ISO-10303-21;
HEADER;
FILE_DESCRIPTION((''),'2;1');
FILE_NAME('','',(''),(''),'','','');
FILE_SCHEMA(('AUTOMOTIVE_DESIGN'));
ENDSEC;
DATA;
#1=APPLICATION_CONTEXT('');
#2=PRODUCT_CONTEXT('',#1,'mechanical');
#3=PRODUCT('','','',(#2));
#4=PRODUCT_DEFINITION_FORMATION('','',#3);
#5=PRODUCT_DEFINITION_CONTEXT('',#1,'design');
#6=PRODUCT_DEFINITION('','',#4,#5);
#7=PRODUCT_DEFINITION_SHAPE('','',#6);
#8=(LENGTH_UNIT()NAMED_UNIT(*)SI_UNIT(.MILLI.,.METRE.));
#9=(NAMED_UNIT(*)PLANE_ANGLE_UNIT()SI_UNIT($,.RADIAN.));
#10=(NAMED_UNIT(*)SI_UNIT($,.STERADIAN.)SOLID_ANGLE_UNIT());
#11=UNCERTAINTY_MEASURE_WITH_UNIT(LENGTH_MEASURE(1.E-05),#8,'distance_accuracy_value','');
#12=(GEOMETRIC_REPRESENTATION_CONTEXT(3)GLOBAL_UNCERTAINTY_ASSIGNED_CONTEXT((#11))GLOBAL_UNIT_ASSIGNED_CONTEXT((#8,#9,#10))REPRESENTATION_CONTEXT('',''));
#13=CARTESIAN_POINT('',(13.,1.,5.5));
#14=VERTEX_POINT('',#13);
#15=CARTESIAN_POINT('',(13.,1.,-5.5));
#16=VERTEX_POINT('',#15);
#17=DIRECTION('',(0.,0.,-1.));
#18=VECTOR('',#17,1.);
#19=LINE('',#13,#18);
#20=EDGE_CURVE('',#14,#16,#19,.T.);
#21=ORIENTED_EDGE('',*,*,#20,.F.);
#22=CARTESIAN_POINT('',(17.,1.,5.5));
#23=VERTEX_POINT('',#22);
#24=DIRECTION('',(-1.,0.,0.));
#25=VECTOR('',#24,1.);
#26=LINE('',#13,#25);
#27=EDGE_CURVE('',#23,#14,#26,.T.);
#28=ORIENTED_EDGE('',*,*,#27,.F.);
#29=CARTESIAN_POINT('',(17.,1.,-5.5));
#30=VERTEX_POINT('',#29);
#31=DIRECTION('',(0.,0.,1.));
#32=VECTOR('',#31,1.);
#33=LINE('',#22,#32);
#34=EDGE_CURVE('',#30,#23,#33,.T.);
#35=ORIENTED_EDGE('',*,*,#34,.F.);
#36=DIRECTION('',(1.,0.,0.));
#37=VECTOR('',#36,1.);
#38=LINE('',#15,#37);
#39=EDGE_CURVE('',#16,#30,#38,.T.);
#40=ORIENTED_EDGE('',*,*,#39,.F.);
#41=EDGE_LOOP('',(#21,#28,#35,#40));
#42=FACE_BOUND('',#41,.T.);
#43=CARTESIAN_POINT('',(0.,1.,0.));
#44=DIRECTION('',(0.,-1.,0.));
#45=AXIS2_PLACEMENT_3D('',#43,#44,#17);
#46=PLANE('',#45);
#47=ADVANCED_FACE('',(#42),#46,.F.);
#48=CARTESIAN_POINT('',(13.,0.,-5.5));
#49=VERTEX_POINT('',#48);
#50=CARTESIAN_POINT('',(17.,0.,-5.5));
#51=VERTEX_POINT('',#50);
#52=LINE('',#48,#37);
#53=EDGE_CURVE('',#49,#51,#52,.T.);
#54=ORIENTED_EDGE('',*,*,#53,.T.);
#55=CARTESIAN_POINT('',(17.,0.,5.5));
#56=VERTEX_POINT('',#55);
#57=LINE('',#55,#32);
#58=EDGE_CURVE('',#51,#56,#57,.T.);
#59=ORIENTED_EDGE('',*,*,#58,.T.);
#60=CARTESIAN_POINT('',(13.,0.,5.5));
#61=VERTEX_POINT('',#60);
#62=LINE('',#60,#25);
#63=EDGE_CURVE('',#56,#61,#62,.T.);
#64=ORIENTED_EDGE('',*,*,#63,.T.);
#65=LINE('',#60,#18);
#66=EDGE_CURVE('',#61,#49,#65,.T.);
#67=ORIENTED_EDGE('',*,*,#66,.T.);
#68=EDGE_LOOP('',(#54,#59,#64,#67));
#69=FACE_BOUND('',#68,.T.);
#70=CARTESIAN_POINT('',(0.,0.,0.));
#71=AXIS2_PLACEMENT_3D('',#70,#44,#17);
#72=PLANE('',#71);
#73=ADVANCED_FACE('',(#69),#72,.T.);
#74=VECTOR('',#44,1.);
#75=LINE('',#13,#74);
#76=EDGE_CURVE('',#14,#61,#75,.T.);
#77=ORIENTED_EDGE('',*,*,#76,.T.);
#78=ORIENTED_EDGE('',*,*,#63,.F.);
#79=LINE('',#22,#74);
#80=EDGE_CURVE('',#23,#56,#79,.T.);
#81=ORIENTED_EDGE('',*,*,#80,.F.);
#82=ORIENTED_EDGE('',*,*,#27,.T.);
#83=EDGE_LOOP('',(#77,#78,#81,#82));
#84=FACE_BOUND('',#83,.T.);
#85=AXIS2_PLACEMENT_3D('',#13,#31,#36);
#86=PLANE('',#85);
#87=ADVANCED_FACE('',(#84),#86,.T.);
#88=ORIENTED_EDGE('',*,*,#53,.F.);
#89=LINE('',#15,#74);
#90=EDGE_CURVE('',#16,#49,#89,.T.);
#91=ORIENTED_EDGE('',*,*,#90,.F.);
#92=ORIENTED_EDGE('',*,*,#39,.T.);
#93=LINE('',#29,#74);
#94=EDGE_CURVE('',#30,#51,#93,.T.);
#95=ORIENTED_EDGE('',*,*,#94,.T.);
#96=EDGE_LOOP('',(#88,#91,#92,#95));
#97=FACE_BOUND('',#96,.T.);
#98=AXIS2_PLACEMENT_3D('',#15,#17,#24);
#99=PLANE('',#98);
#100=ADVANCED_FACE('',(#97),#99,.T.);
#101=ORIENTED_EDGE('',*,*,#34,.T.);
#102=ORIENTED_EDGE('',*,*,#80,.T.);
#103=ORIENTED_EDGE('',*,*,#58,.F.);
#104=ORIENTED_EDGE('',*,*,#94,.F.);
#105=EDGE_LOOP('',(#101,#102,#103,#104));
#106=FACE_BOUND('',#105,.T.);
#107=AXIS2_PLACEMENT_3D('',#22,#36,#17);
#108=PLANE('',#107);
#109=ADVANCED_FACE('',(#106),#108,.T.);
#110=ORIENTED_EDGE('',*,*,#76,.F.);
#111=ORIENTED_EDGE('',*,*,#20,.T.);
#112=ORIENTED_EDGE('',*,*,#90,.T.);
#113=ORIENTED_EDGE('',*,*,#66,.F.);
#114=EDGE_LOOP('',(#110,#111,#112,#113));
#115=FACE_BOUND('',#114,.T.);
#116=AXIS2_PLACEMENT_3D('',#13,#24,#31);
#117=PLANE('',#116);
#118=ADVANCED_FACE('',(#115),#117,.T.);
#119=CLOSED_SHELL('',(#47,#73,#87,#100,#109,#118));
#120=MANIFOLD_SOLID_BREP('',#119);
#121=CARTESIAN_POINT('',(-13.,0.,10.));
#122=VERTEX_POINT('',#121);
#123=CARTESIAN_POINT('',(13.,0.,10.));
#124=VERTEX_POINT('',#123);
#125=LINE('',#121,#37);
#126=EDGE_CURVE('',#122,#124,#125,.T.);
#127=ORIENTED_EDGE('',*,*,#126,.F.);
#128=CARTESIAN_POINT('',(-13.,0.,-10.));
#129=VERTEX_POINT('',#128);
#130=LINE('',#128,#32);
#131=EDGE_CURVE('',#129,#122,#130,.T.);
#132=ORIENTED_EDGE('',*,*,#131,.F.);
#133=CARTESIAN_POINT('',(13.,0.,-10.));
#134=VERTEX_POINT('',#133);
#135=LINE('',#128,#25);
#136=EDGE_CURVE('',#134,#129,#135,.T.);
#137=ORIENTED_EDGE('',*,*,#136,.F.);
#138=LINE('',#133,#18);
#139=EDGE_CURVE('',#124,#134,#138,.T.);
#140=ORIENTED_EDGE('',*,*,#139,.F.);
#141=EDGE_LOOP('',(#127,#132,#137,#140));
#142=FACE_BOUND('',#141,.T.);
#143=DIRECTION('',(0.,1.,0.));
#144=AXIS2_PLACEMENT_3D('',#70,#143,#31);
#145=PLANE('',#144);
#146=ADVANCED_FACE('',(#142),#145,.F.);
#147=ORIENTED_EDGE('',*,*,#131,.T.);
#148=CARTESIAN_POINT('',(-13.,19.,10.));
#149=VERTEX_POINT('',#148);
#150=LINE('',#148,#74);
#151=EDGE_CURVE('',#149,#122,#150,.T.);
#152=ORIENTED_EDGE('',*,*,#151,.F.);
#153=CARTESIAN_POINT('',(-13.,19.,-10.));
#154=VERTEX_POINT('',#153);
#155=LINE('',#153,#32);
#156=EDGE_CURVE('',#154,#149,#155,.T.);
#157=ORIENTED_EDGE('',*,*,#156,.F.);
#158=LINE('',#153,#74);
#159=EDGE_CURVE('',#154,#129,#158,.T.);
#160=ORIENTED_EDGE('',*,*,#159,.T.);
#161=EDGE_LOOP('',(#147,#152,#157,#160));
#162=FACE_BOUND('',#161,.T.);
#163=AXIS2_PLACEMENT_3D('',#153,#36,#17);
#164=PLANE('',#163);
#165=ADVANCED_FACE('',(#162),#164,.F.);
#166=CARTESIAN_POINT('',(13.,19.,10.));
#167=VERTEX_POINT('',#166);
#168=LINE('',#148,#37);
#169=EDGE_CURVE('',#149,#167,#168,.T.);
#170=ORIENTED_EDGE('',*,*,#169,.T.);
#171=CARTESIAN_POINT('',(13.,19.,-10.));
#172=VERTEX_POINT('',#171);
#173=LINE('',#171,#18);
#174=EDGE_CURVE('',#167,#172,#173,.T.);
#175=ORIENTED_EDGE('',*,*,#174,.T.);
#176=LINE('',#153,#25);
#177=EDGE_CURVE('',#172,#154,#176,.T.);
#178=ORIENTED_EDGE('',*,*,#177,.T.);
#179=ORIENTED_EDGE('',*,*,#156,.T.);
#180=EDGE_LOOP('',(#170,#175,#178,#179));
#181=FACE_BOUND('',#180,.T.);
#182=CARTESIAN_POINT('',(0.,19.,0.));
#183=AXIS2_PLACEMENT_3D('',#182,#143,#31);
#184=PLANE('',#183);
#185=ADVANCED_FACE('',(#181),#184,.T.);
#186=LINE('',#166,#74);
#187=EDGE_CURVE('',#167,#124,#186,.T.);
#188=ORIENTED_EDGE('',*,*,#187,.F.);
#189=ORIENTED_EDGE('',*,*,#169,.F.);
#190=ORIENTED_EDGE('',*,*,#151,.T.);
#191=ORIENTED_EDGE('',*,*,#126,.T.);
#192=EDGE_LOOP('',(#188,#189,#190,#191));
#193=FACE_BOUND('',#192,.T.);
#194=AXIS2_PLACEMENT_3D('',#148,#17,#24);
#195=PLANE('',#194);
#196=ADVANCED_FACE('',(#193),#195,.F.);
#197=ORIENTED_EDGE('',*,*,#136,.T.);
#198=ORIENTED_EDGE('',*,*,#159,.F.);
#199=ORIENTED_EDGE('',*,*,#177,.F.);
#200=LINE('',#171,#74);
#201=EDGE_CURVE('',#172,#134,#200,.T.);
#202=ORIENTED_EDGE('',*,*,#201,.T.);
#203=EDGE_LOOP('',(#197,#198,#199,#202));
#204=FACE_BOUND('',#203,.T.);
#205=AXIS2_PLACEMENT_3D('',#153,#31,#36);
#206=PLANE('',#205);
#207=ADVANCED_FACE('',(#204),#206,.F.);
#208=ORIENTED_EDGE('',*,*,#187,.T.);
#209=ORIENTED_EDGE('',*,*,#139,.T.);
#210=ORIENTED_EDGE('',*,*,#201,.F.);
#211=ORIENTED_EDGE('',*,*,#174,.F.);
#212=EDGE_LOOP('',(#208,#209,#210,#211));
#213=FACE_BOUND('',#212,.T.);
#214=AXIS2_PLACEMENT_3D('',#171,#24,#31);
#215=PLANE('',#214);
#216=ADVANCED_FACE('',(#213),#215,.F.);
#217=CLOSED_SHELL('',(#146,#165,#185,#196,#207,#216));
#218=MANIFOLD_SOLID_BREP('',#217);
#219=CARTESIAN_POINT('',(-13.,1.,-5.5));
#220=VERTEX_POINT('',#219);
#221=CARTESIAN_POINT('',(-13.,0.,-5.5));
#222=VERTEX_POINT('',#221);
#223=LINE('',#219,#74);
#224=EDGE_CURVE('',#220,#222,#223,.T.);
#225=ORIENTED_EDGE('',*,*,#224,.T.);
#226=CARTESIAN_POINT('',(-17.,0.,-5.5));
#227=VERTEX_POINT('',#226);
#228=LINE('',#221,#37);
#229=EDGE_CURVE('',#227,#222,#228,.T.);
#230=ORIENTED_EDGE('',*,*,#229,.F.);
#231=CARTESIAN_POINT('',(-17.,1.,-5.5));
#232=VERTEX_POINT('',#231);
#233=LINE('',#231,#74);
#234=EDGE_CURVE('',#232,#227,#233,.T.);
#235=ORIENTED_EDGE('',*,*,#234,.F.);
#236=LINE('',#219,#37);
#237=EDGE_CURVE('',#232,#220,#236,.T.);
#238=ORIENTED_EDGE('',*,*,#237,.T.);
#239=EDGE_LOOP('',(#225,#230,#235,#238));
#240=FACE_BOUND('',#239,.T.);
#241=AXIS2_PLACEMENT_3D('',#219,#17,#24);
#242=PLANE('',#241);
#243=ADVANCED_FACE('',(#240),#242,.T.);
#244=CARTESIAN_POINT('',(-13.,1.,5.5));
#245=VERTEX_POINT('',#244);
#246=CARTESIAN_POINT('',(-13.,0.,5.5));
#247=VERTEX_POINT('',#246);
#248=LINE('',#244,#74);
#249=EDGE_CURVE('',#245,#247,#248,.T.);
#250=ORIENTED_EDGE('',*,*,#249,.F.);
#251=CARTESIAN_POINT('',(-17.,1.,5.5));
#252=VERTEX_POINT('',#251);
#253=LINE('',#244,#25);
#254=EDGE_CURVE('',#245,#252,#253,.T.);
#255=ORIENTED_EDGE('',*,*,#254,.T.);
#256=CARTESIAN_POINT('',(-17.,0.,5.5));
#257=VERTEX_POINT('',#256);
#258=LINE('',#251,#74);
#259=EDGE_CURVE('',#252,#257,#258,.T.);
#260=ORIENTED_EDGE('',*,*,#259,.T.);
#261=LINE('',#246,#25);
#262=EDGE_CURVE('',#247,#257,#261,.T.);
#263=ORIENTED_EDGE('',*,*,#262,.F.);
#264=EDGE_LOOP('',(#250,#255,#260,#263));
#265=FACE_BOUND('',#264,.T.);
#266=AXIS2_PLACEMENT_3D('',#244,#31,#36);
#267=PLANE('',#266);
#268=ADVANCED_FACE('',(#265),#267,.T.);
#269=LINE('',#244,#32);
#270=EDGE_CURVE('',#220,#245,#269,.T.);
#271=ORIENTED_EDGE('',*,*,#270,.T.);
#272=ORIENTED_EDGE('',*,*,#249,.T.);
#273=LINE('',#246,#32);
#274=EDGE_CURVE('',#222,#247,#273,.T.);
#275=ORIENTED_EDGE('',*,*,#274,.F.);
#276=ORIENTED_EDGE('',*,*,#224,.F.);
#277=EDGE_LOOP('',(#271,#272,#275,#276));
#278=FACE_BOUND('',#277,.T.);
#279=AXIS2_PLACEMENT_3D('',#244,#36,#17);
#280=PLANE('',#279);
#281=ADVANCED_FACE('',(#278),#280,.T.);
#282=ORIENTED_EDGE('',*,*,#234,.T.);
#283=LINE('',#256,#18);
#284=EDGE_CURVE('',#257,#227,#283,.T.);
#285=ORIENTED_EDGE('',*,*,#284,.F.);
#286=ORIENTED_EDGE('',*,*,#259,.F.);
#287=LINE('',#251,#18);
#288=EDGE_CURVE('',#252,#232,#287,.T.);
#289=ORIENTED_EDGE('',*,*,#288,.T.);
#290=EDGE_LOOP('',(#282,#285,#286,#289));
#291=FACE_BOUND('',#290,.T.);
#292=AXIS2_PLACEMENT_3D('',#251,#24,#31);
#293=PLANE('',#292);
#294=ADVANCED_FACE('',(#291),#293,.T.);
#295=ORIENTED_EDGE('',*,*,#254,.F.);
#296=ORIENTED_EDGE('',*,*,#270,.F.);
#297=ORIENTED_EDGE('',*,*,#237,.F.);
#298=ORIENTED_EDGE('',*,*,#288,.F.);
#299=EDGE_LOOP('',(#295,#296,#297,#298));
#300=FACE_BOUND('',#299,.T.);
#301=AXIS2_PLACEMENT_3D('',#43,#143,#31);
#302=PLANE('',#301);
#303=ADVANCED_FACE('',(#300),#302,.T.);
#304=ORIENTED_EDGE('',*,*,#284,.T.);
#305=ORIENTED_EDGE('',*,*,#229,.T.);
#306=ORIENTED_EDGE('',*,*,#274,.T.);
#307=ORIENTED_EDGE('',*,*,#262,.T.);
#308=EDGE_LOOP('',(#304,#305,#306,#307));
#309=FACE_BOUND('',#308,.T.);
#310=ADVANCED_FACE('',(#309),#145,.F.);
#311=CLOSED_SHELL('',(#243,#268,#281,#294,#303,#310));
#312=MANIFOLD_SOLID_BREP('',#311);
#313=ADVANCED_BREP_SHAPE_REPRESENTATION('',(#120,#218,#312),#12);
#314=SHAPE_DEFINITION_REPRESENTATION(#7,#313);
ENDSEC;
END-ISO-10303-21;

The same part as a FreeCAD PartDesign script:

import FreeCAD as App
import Part
import Sketcher
from FreeCAD import Vector

doc = App.newDocument("Part")
params = doc.addObject("Spreadsheet::Sheet", "Params")
for row, (alias, value) in enumerate([
    ("sketch1_width", "26 mm"),
    ("sketch1_height", "20 mm"),
    ("pad1_length", "19 mm"),
    ("sketch2_width", "4 mm"),
    ("sketch2_height", "11 mm"),
    ("pad2_length", "1 mm"),
    ("sketch3_width", "4 mm"),
    ("sketch3_height", "11 mm"),
    ("pad3_length", "1 mm"),
], start=1):
    params.set(f"A{row}", alias)
    params.set(f"B{row}", "=" + value)
    params.setAlias(f"B{row}", alias)

body = doc.addObject("PartDesign::Body", "Body")

sketch1 = doc.addObject("Sketcher::SketchObject", "Sketch")
body.addObject(sketch1)
sketch1.AttachmentSupport = (doc.XZ_Plane, [""])
sketch1.MapMode = "FlatFace"
sketch1.addGeometry([
    Part.LineSegment(Vector(-13, -10, 0), Vector(-13, 10, 0)),
    Part.LineSegment(Vector(-13, 10, 0), Vector(13, 10, 0)),
    Part.LineSegment(Vector(13, 10, 0), Vector(13, -10, 0)),
    Part.LineSegment(Vector(13, -10, 0), Vector(-13, -10, 0)),
], False)
sketch1.addConstraint([
    Sketcher.Constraint("Coincident", 0, 2, 1, 1),
    Sketcher.Constraint("Coincident", 1, 2, 2, 1),
    Sketcher.Constraint("Coincident", 2, 2, 3, 1),
    Sketcher.Constraint("Coincident", 3, 2, 0, 1),
    Sketcher.Constraint("Vertical", 0),
    Sketcher.Constraint("Horizontal", 1),
    Sketcher.Constraint("Vertical", 2),
    Sketcher.Constraint("Horizontal", 3),
    Sketcher.Constraint("Symmetric", 0, 2, 2, 2, -1, 1),
    Sketcher.Constraint("DistanceX", 1, 1, 1, 2, 26.0),
    Sketcher.Constraint("DistanceY", 0, 1, 0, 2, 20.0),
])
sketch1.setExpression("Constraints[9]", "Params.sketch1_width")
sketch1.setExpression("Constraints[10]", "Params.sketch1_height")
pad1 = doc.addObject("PartDesign::Pad", "Pad")
body.addObject(pad1)
pad1.Profile = sketch1
pad1.setExpression("Length", "Params.pad1_length")
pad1.Reversed = True
body2 = doc.addObject("PartDesign::Body", "Body001")

sketch2 = doc.addObject("Sketcher::SketchObject", "Sketch001")
body2.addObject(sketch2)
sketch2.AttachmentSupport = (doc.getObject("XZ_Plane001"), [""])
sketch2.MapMode = "FlatFace"
sketch2.addGeometry([
    Part.LineSegment(Vector(-17, 5.5, 0), Vector(-17, -5.5, 0)),
    Part.LineSegment(Vector(-17, -5.5, 0), Vector(-13, -5.5, 0)),
    Part.LineSegment(Vector(-13, -5.5, 0), Vector(-13, 5.5, 0)),
    Part.LineSegment(Vector(-13, 5.5, 0), Vector(-17, 5.5, 0)),
], False)
sketch2.addConstraint([
    Sketcher.Constraint("Coincident", 0, 2, 1, 1),
    Sketcher.Constraint("Coincident", 1, 2, 2, 1),
    Sketcher.Constraint("Coincident", 2, 2, 3, 1),
    Sketcher.Constraint("Coincident", 3, 2, 0, 1),
    Sketcher.Constraint("Vertical", 0),
    Sketcher.Constraint("Horizontal", 1),
    Sketcher.Constraint("Vertical", 2),
    Sketcher.Constraint("Horizontal", 3),
    Sketcher.Constraint("DistanceX", 1, 1, 1, 2, 4.0),
    Sketcher.Constraint("DistanceY", 0, 2, 0, 1, 11.0),
    Sketcher.Constraint("DistanceX", 0, 2, -1, 1, 17.0),
    Sketcher.Constraint("DistanceY", 0, 2, -1, 1, 5.5),
])
sketch2.setExpression("Constraints[8]", "Params.sketch2_width")
sketch2.setExpression("Constraints[9]", "Params.sketch2_height")
pad2 = doc.addObject("PartDesign::Pad", "Pad001")
body2.addObject(pad2)
pad2.Profile = sketch2
pad2.setExpression("Length", "Params.pad2_length")
pad2.Reversed = True
body3 = doc.addObject("PartDesign::Body", "Body002")

sketch3 = doc.addObject("Sketcher::SketchObject", "Sketch002")
body3.addObject(sketch3)
sketch3.AttachmentSupport = (doc.getObject("XZ_Plane002"), [""])
sketch3.MapMode = "FlatFace"
sketch3.addGeometry([
    Part.LineSegment(Vector(13, 5.5, 0), Vector(13, -5.5, 0)),
    Part.LineSegment(Vector(13, -5.5, 0), Vector(17, -5.5, 0)),
    Part.LineSegment(Vector(17, -5.5, 0), Vector(17, 5.5, 0)),
    Part.LineSegment(Vector(17, 5.5, 0), Vector(13, 5.5, 0)),
], False)
sketch3.addConstraint([
    Sketcher.Constraint("Coincident", 0, 2, 1, 1),
    Sketcher.Constraint("Coincident", 1, 2, 2, 1),
    Sketcher.Constraint("Coincident", 2, 2, 3, 1),
    Sketcher.Constraint("Coincident", 3, 2, 0, 1),
    Sketcher.Constraint("Vertical", 0),
    Sketcher.Constraint("Horizontal", 1),
    Sketcher.Constraint("Vertical", 2),
    Sketcher.Constraint("Horizontal", 3),
    Sketcher.Constraint("DistanceX", 1, 1, 1, 2, 4.0),
    Sketcher.Constraint("DistanceY", 0, 2, 0, 1, 11.0),
    Sketcher.Constraint("DistanceX", -1, 1, 0, 2, 13.0),
    Sketcher.Constraint("DistanceY", 0, 2, -1, 1, 5.5),
])
sketch3.setExpression("Constraints[8]", "Params.sketch3_width")
sketch3.setExpression("Constraints[9]", "Params.sketch3_height")
pad3 = doc.addObject("PartDesign::Pad", "Pad002")
body3.addObject(pad3)
pad3.Profile = sketch3
pad3.setExpression("Length", "Params.pad3_length")
pad3.Reversed = True

doc.recompute()
